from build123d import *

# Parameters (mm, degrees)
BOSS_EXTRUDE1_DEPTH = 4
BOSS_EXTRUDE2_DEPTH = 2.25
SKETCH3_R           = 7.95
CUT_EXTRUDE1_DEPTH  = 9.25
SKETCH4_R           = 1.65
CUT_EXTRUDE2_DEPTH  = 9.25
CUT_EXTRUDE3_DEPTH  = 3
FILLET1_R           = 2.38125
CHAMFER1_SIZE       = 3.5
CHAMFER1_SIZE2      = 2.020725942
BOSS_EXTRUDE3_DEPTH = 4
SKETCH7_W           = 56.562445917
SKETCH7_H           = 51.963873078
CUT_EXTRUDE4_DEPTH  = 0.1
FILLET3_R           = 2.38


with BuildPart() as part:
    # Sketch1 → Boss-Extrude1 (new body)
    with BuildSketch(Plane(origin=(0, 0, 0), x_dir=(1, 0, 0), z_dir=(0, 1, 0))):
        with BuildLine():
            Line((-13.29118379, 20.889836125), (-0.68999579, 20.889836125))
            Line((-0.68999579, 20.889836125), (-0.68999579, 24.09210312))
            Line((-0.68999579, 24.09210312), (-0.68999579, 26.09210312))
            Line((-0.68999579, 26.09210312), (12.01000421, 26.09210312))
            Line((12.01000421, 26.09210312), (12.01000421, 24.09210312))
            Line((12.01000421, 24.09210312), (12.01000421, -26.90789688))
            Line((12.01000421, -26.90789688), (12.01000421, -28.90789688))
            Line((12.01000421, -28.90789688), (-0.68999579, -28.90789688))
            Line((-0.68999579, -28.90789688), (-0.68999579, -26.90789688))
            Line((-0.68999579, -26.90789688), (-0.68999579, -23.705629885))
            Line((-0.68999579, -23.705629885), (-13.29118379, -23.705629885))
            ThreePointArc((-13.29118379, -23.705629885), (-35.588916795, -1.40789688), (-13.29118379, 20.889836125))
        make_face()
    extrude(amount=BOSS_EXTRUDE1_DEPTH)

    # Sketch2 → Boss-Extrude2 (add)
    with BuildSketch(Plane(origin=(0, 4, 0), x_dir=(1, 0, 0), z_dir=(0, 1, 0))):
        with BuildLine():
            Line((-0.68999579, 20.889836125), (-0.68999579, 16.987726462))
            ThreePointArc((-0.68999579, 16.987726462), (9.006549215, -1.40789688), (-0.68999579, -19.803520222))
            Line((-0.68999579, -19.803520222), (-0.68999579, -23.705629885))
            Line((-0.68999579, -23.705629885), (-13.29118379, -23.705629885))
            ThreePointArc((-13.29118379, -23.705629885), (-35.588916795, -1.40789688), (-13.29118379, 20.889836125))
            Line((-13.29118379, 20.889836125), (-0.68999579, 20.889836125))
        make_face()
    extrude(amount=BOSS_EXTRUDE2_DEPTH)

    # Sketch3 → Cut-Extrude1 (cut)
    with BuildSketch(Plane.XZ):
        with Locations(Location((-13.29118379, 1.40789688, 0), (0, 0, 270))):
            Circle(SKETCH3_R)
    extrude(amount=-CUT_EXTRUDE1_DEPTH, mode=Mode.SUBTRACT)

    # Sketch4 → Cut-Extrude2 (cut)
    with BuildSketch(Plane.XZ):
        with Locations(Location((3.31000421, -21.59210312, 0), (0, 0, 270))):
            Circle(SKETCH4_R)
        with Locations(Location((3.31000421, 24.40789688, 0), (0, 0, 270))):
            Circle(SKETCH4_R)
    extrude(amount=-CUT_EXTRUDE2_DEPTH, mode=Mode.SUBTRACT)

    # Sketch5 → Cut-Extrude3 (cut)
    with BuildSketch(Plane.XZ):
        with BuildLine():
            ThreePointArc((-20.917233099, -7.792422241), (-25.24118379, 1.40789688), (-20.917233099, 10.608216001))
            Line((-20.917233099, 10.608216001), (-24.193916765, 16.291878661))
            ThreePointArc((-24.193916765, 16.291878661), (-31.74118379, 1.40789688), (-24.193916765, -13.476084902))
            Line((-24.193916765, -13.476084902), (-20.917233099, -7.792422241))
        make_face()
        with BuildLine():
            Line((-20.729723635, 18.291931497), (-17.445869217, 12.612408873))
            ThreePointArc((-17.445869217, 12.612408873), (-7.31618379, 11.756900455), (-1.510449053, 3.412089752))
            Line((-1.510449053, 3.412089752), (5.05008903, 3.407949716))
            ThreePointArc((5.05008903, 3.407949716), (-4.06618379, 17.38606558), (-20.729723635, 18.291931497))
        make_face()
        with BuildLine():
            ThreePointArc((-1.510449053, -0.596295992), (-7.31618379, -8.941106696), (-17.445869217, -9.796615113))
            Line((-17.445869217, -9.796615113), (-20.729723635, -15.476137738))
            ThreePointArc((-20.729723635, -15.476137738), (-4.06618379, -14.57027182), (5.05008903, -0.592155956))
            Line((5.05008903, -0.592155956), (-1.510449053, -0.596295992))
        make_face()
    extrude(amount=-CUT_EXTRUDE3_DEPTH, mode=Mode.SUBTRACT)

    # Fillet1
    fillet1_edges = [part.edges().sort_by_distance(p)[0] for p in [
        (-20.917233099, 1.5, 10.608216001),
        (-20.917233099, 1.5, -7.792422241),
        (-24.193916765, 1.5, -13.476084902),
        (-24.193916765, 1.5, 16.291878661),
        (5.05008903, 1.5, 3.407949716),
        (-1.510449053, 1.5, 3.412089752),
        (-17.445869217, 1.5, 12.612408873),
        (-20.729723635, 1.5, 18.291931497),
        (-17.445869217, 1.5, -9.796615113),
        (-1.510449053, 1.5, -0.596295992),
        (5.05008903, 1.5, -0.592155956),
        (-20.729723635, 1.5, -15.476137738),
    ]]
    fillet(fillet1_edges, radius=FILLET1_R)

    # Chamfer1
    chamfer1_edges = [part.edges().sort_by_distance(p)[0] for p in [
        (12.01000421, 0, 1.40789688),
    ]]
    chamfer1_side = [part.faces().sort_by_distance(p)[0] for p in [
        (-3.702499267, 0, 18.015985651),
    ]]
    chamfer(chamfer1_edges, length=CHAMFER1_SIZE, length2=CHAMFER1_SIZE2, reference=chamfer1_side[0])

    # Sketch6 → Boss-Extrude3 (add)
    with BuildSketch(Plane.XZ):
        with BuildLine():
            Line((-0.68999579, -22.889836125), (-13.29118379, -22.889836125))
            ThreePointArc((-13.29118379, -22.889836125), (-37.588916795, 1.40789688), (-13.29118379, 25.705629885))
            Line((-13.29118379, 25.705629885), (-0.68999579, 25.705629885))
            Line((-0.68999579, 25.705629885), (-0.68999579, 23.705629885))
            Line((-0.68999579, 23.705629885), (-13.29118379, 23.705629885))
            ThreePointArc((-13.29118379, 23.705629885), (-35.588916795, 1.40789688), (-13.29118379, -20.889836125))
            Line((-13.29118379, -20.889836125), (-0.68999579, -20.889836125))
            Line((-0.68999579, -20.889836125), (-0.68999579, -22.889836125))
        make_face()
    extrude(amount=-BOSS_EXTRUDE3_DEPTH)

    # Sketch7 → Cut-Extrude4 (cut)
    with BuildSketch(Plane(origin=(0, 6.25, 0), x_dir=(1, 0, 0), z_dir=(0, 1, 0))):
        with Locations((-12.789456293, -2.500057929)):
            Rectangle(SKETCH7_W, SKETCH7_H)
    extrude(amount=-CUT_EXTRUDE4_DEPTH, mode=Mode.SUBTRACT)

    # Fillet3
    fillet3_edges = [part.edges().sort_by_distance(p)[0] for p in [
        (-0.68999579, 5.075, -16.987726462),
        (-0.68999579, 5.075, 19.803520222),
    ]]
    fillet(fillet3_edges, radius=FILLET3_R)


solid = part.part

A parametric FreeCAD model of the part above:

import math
import FreeCAD as App
import Part
import Sketcher

V = App.Vector


def edges_at(feature, points):
    """Names of the edges that pass closest to the given points."""
    edges = feature.Shape.Edges
    near = lambda p: min(range(len(edges)), key=lambda i: edges[i].distToShape(Part.Vertex(*p))[0])
    return sorted({f"Edge{near(p) + 1}" for p in points})


def add_polygon(sketch, points):
    """Adds a closed chain of lines whose ends are joined by coincident constraints."""
    first, n = sketch.GeometryCount, len(points)
    for a, b in zip(points, points[1:] + points[:1]):
        sketch.addGeometry(Part.LineSegment(App.Vector(*a, 0), App.Vector(*b, 0)), False)
    for i in range(n):
        sketch.addConstraint(Sketcher.Constraint("Coincident", first + i, 2, first + (i + 1) % n, 1))

doc = App.newDocument("Part")
params = doc.addObject("Spreadsheet::Sheet", "Params")
for row, (alias, value) in enumerate([
    ("sketch1_height", "55 mm"),
    ("sketch1_width", "12.7 mm"),
    ("pad1_length", "4 mm"),
    ("pad2_length", "2.25 mm"),
    ("sketch3_diameter", "15.9 mm"),
    ("pocket1_length", "9.25 mm"),
    ("sketch4_diameter", "3.3 mm"),
    ("pocket2_length", "9.25 mm"),
    ("sketch5_radius", "11.95 mm"),
    ("sketch5_radius2", "18.45 mm"),
    ("pocket3_length", "3 mm"),
    ("fillet_radius", "2.38125 mm"),
    ("chamfer_size", "3.5 mm"),
    ("chamfer_size2", "2.020726 mm"),
    ("sketch6_height", "2 mm"),
    ("pad3_length", "4 mm"),
    ("pocket4_length", "0.1 mm"),
    ("fillet2_radius", "2.38 mm"),
], start=1):
    params.set(f"A{row}", alias)
    params.set(f"B{row}", "=" + value)
    params.setAlias(f"B{row}", alias)

body = doc.addObject("PartDesign::Body", "Body")

# Sketch on XZ plane
sketch1 = body.newObject("Sketcher::SketchObject", "Sketch")
sketch1.AttachmentSupport = (doc.getObject("XZ_Plane"), [""])
sketch1.MapMode = "FlatFace"
sketch1.addGeometry([
    Part.LineSegment(V(-1, -21, 0), V(-13, -21, 0)),  # 0
    Part.ArcOfCircle(Part.Circle(V(-13, 1, 0), V(0, 0, 1), 22), math.radians(90), math.radians(270)),  # 1
    Part.LineSegment(V(-13, 24, 0), V(-1, 24, 0)),  # 2
    Part.LineSegment(V(-1, 24, 0), V(-1, 29, 0)),  # 3
    Part.LineSegment(V(-1, 29, 0), V(12, 29, 0)),  # 4
    Part.LineSegment(V(12, 29, 0), V(12, -26, 0)),  # 5
    Part.LineSegment(V(12, -26, 0), V(-1, -26, 0)),  # 6
    Part.LineSegment(V(-1, -26, 0), V(-1, -21, 0)),  # 7
], False)
sketch1.addConstraint([
    Sketcher.Constraint("Tangent", 0, 2, 1, 2),
    Sketcher.Constraint("Tangent", 1, 1, 2, 1),
    Sketcher.Constraint("Coincident", 2, 2, 3, 1),
    Sketcher.Constraint("Coincident", 3, 2, 4, 1),
    Sketcher.Constraint("Coincident", 4, 2, 5, 1),
    Sketcher.Constraint("Coincident", 5, 2, 6, 1),
    Sketcher.Constraint("Coincident", 6, 2, 7, 1),
    Sketcher.Constraint("Coincident", 7, 2, 0, 1),
    Sketcher.Constraint("Horizontal", 0),
    Sketcher.Constraint("Horizontal", 2),
    Sketcher.Constraint("Vertical", 3),
    Sketcher.Constraint("Horizontal", 4),
    Sketcher.Constraint("Vertical", 5),
    Sketcher.Constraint("Horizontal", 6),
    Sketcher.Constraint("Vertical", 7),
    Sketcher.Constraint("Vertical", 3, 2, 6, 2),
    Sketcher.Constraint("Equal", 3, 7),
    Sketcher.Constraint("DistanceY", 5, 2, 5, 1, 55.0),
    Sketcher.Constraint("DistanceX", 4, 1, 4, 2, 12.7),
    Sketcher.Constraint("Radius", 1, 22.297733),
    Sketcher.Constraint("DistanceX", 0, 2, 0, 1, 12.601188),
    Sketcher.Constraint("DistanceY", -1, 1, 1, 1, 23.70563),
    Sketcher.Constraint("DistanceX", 1, 3, -1, 1, 13.291184),
])
sketch1.setExpression("Constraints[17]", "Params.sketch1_height")
sketch1.setExpression("Constraints[18]", "Params.sketch1_width")
pad1 = body.newObject("PartDesign::Pad", "Pad")
pad1.Profile = sketch1
pad1.setExpression("Length", "Params.pad1_length")
pad1.Reversed = True

# Sketch on XZ plane
sketch2 = body.newObject("Sketcher::SketchObject", "Sketch001")
sketch2.AttachmentSupport = (doc.getObject("XZ_Plane"), [""])
sketch2.MapMode = "FlatFace"
sketch2.AttachmentOffset = App.Placement(V(0, 0, -4), App.Rotation())
sketch2.addGeometry([
    Part.LineSegment(V(-0.7, -17, 0), V(-0.7, -20.9, 0)),  # 0
    Part.LineSegment(V(-0.7, -20.9, 0), V(-13.3, -20.9, 0)),  # 1
    Part.ArcOfCircle(Part.Circle(V(-13.3, 1.4, 0), V(0, 0, 1), 22.3), math.radians(90), math.radians(270)),  # 2
    Part.LineSegment(V(-13.3, 23.7, 0), V(-0.7, 23.7, 0)),  # 3
    Part.LineSegment(V(-0.7, 23.7, 0), V(-0.7, 19.8, 0)),  # 4
    Part.ArcOfCircle(Part.Circle(V(-13.3, 1.4, 0), V(0, 0, 1), 22.3), math.radians(-56), math.radians(56)),  # 5
], False)
sketch2.addConstraint([
    Sketcher.Constraint("Coincident", 0, 2, 1, 1),
    Sketcher.Constraint("Tangent", 1, 2, 2, 2),
    Sketcher.Constraint("Tangent", 2, 1, 3, 1),
    Sketcher.Constraint("Coincident", 3, 2, 4, 1),
    Sketcher.Constraint("Coincident", 4, 2, 5, 2),
    Sketcher.Constraint("Coincident", 5, 1, 0, 1),
    Sketcher.Constraint("Vertical", 0),
    Sketcher.Constraint("Horizontal", 1),
    Sketcher.Constraint("Horizontal", 3),
    Sketcher.Constraint("Vertical", 4),
    Sketcher.Constraint("Coincident", 5, 3, 2, 3),
    Sketcher.Constraint("Equal", 2, 5),
    Sketcher.Constraint("Vertical", 0, 2, 3, 2),
    Sketcher.Constraint("Radius", 2, 22.297733),
    Sketcher.Constraint("DistanceY", 0, 2, 0, 1, 3.90211),
    Sketcher.Constraint("DistanceY", -1, 1, 2, 1, 23.70563),
    Sketcher.Constraint("DistanceX", 2, 3, -1, 1, 13.291184),
])
pad2 = body.newObject("PartDesign::Pad", "Pad001")
pad2.Profile = sketch2
pad2.setExpression("Length", "Params.pad2_length")
pad2.Reversed = True

# Sketch on XZ plane
sketch3 = body.newObject("Sketcher::SketchObject", "Sketch002")
sketch3.AttachmentSupport = (doc.getObject("XZ_Plane"), [""])
sketch3.MapMode = "FlatFace"
sketch3.addGeometry(Part.Circle(V(-13, 1, 0), V(0, 0, 1), 8), False)
sketch3.addConstraint([
    Sketcher.Constraint("Diameter", 0, 15.9),
    Sketcher.Constraint("DistanceX", 0, 3, -1, 1, 13.291184),
    Sketcher.Constraint("DistanceY", -1, 1, 0, 3, 1.407897),
])
sketch3.setExpression("Constraints[0]", "Params.sketch3_diameter")
pocket1 = body.newObject("PartDesign::Pocket", "Pocket")
pocket1.Profile = sketch3
pocket1.setExpression("Length", "Params.pocket1_length")

# Sketch on XZ plane
sketch4 = body.newObject("Sketcher::SketchObject", "Sketch003")
sketch4.AttachmentSupport = (doc.getObject("XZ_Plane"), [""])
sketch4.MapMode = "FlatFace"
sketch4.addGeometry([
    Part.Circle(V(3.3, -21.6, 0), V(0, 0, 1), 1.6),
    Part.Circle(V(3.3, 24.4, 0), V(0, 0, 1), 1.6),
], False)
sketch4.addConstraint([
    Sketcher.Constraint("Equal", 0, 1),
    Sketcher.Constraint("Vertical", 0, 3, 1, 3),
    Sketcher.Constraint("Diameter", 0, 3.3),
    Sketcher.Constraint("DistanceY", 0, 3, 1, 3, 46.0),
    Sketcher.Constraint("DistanceX", -1, 1, 0, 3, 3.310004),
    Sketcher.Constraint("DistanceY", 0, 3, -1, 1, 21.592103),
])
sketch4.setExpression("Constraints[2]", "Params.sketch4_diameter")
pocket2 = body.newObject("PartDesign::Pocket", "Pocket001")
pocket2.Profile = sketch4
pocket2.setExpression("Length", "Params.pocket2_length")

# Sketch on XZ plane
sketch5 = body.newObject("Sketcher::SketchObject", "Sketch004")
sketch5.AttachmentSupport = (doc.getObject("XZ_Plane"), [""])
sketch5.MapMode = "FlatFace"
sketch5.addGeometry([
    Part.ArcOfCircle(Part.Circle(V(-13, 1, 0), V(0, 0, 1), 12), math.radians(130), math.radians(230)),  # 0
    Part.LineSegment(V(-21, 11, 0), V(-24, 16, 0)),  # 1
    Part.ArcOfCircle(Part.Circle(V(-13, 1, 0), V(0, 0, 1), 18), math.radians(126), math.radians(234)),  # 2
    Part.LineSegment(V(-24, -13, 0), V(-21, -8, 0)),  # 3
    Part.LineSegment(V(-21, 18, 0), V(-17, 13, 0)),  # 4
    Part.ArcOfCircle(Part.Circle(V(-13, 1, 0), V(0, 0, 1), 12), math.radians(10), math.radians(110)),  # 5
    Part.LineSegment(V(-2, 3, 0), V(5, 3, 0)),  # 6
    Part.ArcOfCircle(Part.Circle(V(-13, 1, 0), V(0, 0, 1), 18), math.radians(6), math.radians(114)),  # 7
    Part.ArcOfCircle(Part.Circle(V(-13, 1, 0), V(0, 0, 1), 12), math.radians(-110), math.radians(-10)),  # 8
    Part.LineSegment(V(-17, -10, 0), V(-21, -15, 0)),  # 9
    Part.ArcOfCircle(Part.Circle(V(-13, 1, 0), V(0, 0, 1), 18), math.radians(-114), math.radians(-6)),  # 10
    Part.LineSegment(V(5, -1, 0), V(-2, -1, 0)),  # 11
], False)
sketch5.addConstraint([
    Sketcher.Constraint("Coincident", 0, 1, 1, 1),
    Sketcher.Constraint("Coincident", 1, 2, 2, 1),
    Sketcher.Constraint("Coincident", 2, 2, 3, 1),
    Sketcher.Constraint("Coincident", 3, 2, 0, 2),
    Sketcher.Constraint("Coincident", 4, 2, 5, 2),
    Sketcher.Constraint("Coincident", 5, 1, 6, 1),
    Sketcher.Constraint("Coincident", 6, 2, 7, 1),
    Sketcher.Constraint("Coincident", 7, 2, 4, 1),
    Sketcher.Constraint("Coincident", 8, 1, 9, 1),
    Sketcher.Constraint("Coincident", 9, 2, 10, 1),
    Sketcher.Constraint("Coincident", 10, 2, 11, 1),
    Sketcher.Constraint("Coincident", 11, 2, 8, 2),
    Sketcher.Constraint("Coincident", 2, 3, 0, 3),
    Sketcher.Constraint("Coincident", 5, 3, 0, 3),
    Sketcher.Constraint("Coincident", 7, 3, 0, 3),
    Sketcher.Constraint("Coincident", 8, 3, 0, 3),
    Sketcher.Constraint("Coincident", 10, 3, 0, 3),
    Sketcher.Constraint("Equal", 0, 5),
    Sketcher.Constraint("Equal", 2, 7),
    Sketcher.Constraint("Equal", 5, 8),
    Sketcher.Constraint("Equal", 7, 10),
    Sketcher.Constraint("Vertical", 1, 2, 2, 2),
    Sketcher.Constraint("Vertical", 0, 1, 3, 2),
    Sketcher.Constraint("Vertical", 4, 2, 8, 1),
    Sketcher.Constraint("Vertical", 7, 2, 9, 2),
    Sketcher.Constraint("Vertical", 6, 2, 10, 2),
    Sketcher.Constraint("Vertical", 5, 1, 11, 2),
    Sketcher.Constraint("Equal", 3, 4),
    Sketcher.Constraint("Equal", 4, 6),
    Sketcher.Constraint("Radius", 0, 11.95),
    Sketcher.Constraint("Radius", 2, 18.45),
    Sketcher.Constraint("Distance", 1, 6.560539),
    Sketcher.Constraint("DistanceY", -1, 1, 1, 2, 16.291879),
    Sketcher.Constraint("DistanceX", 4, 2, -1, 1, 17.445869),
    Sketcher.Constraint("DistanceY", -1, 1, 4, 2, 12.612409),
    Sketcher.Constraint("DistanceX", 5, 1, -1, 1, 1.510449),
    Sketcher.Constraint("DistanceY", -1, 1, 5, 1, 3.41209),
])
sketch5.setExpression("Constraints[29]", "Params.sketch5_radius")
sketch5.setExpression("Constraints[30]", "Params.sketch5_radius2")
pocket3 = body.newObject("PartDesign::Pocket", "Pocket002")
pocket3.Profile = sketch5
pocket3.setExpression("Length", "Params.pocket3_length")
doc.recompute()

fillet = body.newObject("PartDesign::Fillet", "Fillet")
fillet.Base = (pocket3, edges_at(pocket3, [
    (-20.917, 1.5, 10.608),
    (-20.917, 1.5, -7.792),
    (-24.194, 1.5, -13.476),
    (-24.194, 1.5, 16.292),
    (5.05, 1.5, 3.408),
    (-1.51, 1.5, 3.412),
    (-17.446, 1.5, 12.612),
    (-20.73, 1.5, 18.292),
    (-17.446, 1.5, -9.797),
    (-1.51, 1.5, -0.596),
    (5.05, 1.5, -0.592),
    (-20.73, 1.5, -15.476),
]))
fillet.setExpression("Radius", "Params.fillet_radius")
doc.recompute()

chamfer = body.newObject("PartDesign::Chamfer", "Chamfer")
chamfer.Base = (fillet, edges_at(fillet, [(12.01, 0, 1.408)]))
chamfer.ChamferType = "Two distances"
chamfer.setExpression("Size", "Params.chamfer_size")
chamfer.setExpression("Size2", "Params.chamfer_size2")

# Sketch on XZ plane
sketch6 = body.newObject("Sketcher::SketchObject", "Sketch005")
sketch6.AttachmentSupport = (doc.getObject("XZ_Plane"), [""])
sketch6.MapMode = "FlatFace"
sketch6.addGeometry([
    Part.LineSegment(V(-13.3, -22.9, 0), V(-0.7, -22.9, 0)),  # 0
    Part.LineSegment(V(-0.7, -22.9, 0), V(-0.7, -20.9, 0)),  # 1
    Part.LineSegment(V(-0.7, -20.9, 0), V(-13.3, -20.9, 0)),  # 2
    Part.ArcOfCircle(Part.Circle(V(-13.3, 1.4, 0), V(0, 0, 1), 22.3), math.radians(90), math.radians(270)),  # 3
    Part.LineSegment(V(-13.3, 23.7, 0), V(-0.7, 23.7, 0)),  # 4
    Part.LineSegment(V(-0.7, 23.7, 0), V(-0.7, 25.7, 0)),  # 5
    Part.LineSegment(V(-0.7, 25.7, 0), V(-13.3, 25.7, 0)),  # 6
    Part.ArcOfCircle(Part.Circle(V(-13.3, 1.4, 0), V(0, 0, 1), 24.3), math.radians(90), math.radians(270)),  # 7
], False)
sketch6.addConstraint([
    Sketcher.Constraint("Coincident", 0, 2, 1, 1),
    Sketcher.Constraint("Coincident", 1, 2, 2, 1),
    Sketcher.Constraint("Tangent", 2, 2, 3, 2),
    Sketcher.Constraint("Tangent", 3, 1, 4, 1),
    Sketcher.Constraint("Coincident", 4, 2, 5, 1),
    Sketcher.Constraint("Coincident", 5, 2, 6, 1),
    Sketcher.Constraint("Tangent", 6, 2, 7, 1),
    Sketcher.Constraint("Tangent", 7, 2, 0, 1),
    Sketcher.Constraint("Horizontal", 0),
    Sketcher.Constraint("Vertical", 1),
    Sketcher.Constraint("Horizontal", 2),
    Sketcher.Constraint("Horizontal", 4),
    Sketcher.Constraint("Vertical", 5),
    Sketcher.Constraint("Horizontal", 6),
    Sketcher.Constraint("Coincident", 7, 3, 3, 3),
    Sketcher.Constraint("Vertical", 1, 2, 4, 2),
    Sketcher.Constraint("DistanceY", 1, 1, 1, 2, 2.0),
    Sketcher.Constraint("Radius", 3, 22.297733),
    Sketcher.Constraint("DistanceX", 0, 1, 0, 2, 12.601188),
    Sketcher.Constraint("DistanceY", -1, 1, 3, 1, 23.70563),
    Sketcher.Constraint("DistanceX", 3, 3, -1, 1, 13.291184),
])
sketch6.setExpression("Constraints[16]", "Params.sketch6_height")
pad3 = body.newObject("PartDesign::Pad", "Pad002")
pad3.Profile = sketch6
pad3.setExpression("Length", "Params.pad3_length")
pad3.Reversed = True

# Sketch on XZ plane
sketch7 = body.newObject("Sketcher::SketchObject", "Sketch006")
sketch7.AttachmentSupport = (doc.getObject("XZ_Plane"), [""])
sketch7.MapMode = "FlatFace"
sketch7.AttachmentOffset = App.Placement(V(0, 0, -6.25), App.Rotation())
add_polygon(sketch7, [(-41, -23), (-41, 28), (15, 28), (15, -23)])  # lines 0-3
sketch7.addConstraint([
    Sketcher.Constraint("Vertical", 0),
    Sketcher.Constraint("Horizontal", 1),
    Sketcher.Constraint("Vertical", 2),
    Sketcher.Constraint("Horizontal", 3),
    Sketcher.Constraint("DistanceX", 1, 1, 1, 2, 56.562446),
    Sketcher.Constraint("DistanceY", 0, 1, 0, 2, 51.963873),
    Sketcher.Constraint("DistanceX", 0, 2, -1, 1, 41.070679),
    Sketcher.Constraint("DistanceY", 2, 2, -1, 1, 23.481879),
])
pocket4 = body.newObject("PartDesign::Pocket", "Pocket003")
pocket4.Profile = sketch7
pocket4.setExpression("Length", "Params.pocket4_length")
pocket4.Reversed = True
doc.recompute()

fillet2 = body.newObject("PartDesign::Fillet", "Fillet001")
fillet2.Base = (pocket4, edges_at(pocket4, [(-0.69, 5.075, -16.988), (-0.69, 5.075, 19.804)]))
fillet2.setExpression("Radius", "Params.fillet2_radius")

doc.recompute()
